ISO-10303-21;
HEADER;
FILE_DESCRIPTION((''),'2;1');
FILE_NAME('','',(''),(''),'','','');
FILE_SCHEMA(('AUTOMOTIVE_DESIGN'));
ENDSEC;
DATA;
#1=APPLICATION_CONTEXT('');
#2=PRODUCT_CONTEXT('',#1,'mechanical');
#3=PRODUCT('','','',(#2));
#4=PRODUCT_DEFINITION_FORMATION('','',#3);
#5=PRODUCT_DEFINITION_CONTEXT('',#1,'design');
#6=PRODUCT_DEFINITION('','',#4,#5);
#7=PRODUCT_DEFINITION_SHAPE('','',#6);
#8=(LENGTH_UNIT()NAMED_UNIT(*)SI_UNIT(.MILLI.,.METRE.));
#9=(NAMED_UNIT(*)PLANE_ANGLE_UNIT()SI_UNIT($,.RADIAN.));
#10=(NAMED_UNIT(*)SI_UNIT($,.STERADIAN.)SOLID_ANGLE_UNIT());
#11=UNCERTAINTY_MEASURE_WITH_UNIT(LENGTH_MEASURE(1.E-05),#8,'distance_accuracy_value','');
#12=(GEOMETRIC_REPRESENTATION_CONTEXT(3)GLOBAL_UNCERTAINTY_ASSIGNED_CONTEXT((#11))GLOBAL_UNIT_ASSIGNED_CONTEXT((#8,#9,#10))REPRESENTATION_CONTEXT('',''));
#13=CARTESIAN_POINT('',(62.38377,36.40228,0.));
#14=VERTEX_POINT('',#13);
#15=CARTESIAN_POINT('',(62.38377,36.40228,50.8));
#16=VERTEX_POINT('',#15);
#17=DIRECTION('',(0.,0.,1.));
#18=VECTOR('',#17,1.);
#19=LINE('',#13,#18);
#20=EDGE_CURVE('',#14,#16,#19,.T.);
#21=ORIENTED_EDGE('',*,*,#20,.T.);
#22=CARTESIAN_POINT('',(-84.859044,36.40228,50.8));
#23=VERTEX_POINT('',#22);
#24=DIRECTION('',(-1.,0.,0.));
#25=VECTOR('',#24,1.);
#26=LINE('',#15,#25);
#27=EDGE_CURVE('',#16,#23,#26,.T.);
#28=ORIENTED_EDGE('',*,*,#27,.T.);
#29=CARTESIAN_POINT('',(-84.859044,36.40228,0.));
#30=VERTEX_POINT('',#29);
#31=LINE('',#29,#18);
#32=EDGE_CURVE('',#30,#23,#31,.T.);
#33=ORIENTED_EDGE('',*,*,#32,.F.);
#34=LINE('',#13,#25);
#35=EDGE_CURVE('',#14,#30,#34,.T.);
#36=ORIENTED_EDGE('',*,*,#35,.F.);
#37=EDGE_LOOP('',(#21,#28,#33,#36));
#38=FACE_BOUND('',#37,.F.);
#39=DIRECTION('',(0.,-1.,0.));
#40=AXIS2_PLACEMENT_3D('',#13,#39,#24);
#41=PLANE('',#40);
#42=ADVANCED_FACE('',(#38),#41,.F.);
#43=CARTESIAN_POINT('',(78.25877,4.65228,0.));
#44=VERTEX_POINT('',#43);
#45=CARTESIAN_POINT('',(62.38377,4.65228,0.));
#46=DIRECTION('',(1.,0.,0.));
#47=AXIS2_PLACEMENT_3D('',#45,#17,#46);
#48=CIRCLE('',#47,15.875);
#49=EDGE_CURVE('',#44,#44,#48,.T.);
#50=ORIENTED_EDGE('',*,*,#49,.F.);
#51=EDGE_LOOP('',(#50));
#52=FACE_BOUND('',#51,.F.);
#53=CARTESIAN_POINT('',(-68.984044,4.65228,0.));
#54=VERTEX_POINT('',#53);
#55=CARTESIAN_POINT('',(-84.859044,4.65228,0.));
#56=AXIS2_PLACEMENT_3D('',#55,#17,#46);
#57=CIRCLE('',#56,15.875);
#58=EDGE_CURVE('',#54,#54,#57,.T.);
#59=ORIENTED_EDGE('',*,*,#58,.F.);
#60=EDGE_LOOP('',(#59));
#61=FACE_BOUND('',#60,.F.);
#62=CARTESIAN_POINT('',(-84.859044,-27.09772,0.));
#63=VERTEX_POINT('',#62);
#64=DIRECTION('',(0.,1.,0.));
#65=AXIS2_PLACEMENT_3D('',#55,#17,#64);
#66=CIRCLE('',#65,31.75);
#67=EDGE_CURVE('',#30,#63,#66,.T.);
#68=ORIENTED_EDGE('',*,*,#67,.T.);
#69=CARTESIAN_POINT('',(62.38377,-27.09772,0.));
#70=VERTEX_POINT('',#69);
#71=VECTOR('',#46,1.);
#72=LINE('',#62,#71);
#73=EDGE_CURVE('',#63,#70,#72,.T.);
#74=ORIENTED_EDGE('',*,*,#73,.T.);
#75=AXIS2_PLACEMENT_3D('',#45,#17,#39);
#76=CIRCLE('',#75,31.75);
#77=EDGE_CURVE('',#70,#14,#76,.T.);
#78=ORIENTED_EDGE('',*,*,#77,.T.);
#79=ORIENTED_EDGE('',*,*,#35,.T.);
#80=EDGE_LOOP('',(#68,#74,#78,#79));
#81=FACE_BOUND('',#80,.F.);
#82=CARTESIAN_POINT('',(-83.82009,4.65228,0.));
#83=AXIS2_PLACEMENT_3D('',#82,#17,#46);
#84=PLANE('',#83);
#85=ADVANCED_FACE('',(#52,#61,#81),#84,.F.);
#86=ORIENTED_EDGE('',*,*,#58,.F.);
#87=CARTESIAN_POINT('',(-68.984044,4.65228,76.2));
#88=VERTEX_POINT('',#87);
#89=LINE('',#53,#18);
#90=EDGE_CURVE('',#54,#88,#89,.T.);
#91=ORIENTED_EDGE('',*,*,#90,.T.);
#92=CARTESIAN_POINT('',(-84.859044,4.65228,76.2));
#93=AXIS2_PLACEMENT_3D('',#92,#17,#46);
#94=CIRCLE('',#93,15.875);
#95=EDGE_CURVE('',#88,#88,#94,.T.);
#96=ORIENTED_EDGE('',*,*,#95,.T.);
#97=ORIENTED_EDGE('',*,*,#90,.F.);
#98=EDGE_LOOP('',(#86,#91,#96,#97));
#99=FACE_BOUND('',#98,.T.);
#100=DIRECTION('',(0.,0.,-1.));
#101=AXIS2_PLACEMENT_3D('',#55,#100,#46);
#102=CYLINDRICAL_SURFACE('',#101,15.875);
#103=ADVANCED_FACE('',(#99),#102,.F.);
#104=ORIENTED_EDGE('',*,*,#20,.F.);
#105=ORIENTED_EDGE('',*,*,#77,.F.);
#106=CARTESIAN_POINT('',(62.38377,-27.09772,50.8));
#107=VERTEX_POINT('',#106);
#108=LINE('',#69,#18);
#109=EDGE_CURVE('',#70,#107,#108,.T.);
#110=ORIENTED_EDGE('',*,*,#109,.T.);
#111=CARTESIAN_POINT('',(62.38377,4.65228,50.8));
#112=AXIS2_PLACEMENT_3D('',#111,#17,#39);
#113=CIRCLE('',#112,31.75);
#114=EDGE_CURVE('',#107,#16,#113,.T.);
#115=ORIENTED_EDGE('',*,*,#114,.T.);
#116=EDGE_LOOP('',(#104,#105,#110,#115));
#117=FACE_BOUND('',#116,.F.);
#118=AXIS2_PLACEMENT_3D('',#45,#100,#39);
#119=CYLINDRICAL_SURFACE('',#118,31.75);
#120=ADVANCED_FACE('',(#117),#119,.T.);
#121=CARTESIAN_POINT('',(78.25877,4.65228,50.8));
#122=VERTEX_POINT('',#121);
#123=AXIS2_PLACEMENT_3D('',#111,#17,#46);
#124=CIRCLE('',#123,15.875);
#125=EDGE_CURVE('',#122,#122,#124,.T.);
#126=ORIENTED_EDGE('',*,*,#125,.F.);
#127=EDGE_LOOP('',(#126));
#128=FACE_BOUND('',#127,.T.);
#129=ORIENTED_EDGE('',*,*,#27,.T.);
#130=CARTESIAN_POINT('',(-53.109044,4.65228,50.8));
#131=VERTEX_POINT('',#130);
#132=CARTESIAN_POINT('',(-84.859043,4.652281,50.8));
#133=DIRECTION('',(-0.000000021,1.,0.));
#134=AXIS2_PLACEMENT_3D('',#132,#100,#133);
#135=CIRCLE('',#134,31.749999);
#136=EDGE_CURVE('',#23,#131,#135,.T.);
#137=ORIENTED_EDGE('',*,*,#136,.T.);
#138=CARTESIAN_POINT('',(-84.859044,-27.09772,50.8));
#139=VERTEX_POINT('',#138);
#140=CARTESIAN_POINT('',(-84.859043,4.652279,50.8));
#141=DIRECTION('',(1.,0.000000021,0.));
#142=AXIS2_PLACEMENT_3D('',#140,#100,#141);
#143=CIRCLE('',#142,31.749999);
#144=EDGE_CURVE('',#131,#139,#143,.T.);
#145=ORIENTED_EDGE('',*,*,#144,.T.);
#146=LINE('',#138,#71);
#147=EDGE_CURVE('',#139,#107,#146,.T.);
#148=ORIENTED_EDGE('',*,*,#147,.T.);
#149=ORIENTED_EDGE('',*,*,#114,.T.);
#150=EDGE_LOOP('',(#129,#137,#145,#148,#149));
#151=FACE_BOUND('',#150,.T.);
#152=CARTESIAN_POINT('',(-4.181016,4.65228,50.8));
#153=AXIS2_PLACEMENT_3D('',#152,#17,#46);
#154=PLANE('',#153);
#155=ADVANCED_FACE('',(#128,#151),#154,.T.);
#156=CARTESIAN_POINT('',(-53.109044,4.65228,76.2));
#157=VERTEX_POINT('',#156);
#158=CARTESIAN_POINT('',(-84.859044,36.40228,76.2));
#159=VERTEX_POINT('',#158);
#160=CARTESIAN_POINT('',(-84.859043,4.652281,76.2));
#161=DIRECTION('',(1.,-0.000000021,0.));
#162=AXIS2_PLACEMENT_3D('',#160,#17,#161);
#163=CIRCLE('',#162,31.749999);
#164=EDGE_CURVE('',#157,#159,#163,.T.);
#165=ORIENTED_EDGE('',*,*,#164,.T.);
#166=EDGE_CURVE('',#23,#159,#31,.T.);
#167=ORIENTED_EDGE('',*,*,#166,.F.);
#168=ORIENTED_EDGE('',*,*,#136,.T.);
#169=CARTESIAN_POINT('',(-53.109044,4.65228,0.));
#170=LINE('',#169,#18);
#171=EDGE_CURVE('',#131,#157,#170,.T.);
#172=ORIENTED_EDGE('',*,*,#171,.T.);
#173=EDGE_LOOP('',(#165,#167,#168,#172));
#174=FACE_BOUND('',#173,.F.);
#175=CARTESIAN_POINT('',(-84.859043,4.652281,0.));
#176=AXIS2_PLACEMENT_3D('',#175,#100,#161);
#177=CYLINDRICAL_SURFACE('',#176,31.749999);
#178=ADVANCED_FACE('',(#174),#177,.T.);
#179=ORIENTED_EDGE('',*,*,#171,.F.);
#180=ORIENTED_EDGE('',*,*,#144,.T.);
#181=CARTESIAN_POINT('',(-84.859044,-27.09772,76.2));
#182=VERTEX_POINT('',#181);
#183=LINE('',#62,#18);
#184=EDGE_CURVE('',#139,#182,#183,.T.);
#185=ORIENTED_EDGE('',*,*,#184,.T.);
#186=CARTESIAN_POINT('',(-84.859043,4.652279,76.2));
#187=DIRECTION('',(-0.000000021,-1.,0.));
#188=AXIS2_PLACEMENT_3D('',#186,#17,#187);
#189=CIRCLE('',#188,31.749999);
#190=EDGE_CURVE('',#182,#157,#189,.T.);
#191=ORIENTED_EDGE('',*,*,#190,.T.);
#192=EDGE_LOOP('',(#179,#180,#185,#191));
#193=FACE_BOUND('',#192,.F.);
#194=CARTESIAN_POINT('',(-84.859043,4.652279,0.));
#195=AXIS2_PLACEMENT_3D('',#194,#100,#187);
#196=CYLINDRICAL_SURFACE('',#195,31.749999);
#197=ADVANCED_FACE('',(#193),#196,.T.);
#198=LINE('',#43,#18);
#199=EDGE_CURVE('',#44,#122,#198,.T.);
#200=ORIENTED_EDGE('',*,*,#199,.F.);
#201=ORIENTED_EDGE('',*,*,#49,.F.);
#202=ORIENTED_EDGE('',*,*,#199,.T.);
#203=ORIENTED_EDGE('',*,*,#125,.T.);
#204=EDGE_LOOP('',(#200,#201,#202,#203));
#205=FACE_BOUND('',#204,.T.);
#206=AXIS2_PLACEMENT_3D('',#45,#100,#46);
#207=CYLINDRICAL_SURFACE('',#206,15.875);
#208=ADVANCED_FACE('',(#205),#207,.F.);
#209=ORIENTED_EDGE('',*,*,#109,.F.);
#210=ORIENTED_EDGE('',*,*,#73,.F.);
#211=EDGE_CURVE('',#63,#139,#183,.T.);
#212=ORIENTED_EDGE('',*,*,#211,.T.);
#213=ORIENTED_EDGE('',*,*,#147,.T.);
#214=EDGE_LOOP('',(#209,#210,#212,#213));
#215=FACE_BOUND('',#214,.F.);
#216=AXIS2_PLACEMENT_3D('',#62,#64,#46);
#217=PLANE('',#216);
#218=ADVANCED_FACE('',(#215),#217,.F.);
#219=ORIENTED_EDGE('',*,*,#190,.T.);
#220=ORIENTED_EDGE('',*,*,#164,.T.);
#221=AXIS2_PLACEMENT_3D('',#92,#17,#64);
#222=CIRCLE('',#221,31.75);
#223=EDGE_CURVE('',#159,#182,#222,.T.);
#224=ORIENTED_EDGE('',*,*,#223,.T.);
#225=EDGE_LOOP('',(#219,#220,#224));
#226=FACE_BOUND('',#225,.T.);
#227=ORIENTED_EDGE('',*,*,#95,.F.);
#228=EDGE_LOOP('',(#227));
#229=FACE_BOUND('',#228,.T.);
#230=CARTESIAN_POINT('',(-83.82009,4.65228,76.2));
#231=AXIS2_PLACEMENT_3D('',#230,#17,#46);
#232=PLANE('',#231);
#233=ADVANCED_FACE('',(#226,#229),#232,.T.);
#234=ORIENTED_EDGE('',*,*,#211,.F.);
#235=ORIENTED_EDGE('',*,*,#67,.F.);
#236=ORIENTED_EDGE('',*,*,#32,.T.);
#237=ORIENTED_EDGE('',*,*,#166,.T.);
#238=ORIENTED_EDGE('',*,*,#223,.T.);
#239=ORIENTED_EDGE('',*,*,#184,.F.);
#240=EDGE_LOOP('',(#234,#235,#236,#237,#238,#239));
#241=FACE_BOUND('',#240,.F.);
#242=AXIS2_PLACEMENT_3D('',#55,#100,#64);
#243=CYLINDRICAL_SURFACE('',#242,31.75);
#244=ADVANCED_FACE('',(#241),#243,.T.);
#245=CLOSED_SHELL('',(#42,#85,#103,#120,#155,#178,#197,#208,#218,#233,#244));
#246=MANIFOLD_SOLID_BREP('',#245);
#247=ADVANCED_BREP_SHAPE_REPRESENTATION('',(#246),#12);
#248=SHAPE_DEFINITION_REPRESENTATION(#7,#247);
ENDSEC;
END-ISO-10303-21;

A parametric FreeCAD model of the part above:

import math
import FreeCAD as App
import Part
import Sketcher
Q = App.Units.Quantity

doc = App.newDocument("Part")
body = doc.addObject("PartDesign::Body", "Body")

# Sketch on XY plane
sketch1 = body.newObject("Sketcher::SketchObject", "Sketch")
sketch1.AttachmentSupport = (doc.getObject("XY_Plane"), [""])
sketch1.MapMode = "FlatFace"
sketch1.addGeometry(Part.ArcOfCircle(Part.Circle(App.Vector(-84.859043, 4.652281, 0), App.Vector(0, 0, 1), 31.749999), math.radians(-0.000001), math.radians(90.000001)), False)
sketch1.addGeometry(Part.ArcOfCircle(Part.Circle(App.Vector(-84.859043, 4.652279, 0), App.Vector(0, 0, 1), 31.749999), math.radians(-90.000001), math.radians(0.000001)), False)
sketch1.addGeometry(Part.LineSegment(App.Vector(-84.859044, -27.09772, 0), App.Vector(62.38377, -27.09772, 0)), False)
sketch1.addGeometry(Part.ArcOfCircle(Part.Circle(App.Vector(62.38377, 4.65228, 0), App.Vector(0, 0, 1), 31.75), math.radians(-90), math.radians(90)), False)
sketch1.addGeometry(Part.LineSegment(App.Vector(62.38377, 36.40228, 0), App.Vector(-84.859044, 36.40228, 0)), False)
sketch1.addGeometry(Part.Circle(App.Vector(62.38377, 4.65228, 0), App.Vector(0, 0, 1), 15.875), False)
sketch1.addConstraint(Sketcher.Constraint("Tangent", 0, 1, 1, 2))
sketch1.addConstraint(Sketcher.Constraint("Tangent", 1, 1, 2, 1))
sketch1.addConstraint(Sketcher.Constraint("Tangent", 2, 2, 3, 1))
sketch1.addConstraint(Sketcher.Constraint("Tangent", 3, 2, 4, 1))
sketch1.addConstraint(Sketcher.Constraint("Tangent", 4, 2, 0, 2))
sketch1.addConstraint(Sketcher.Constraint("Horizontal", 2))
sketch1.addConstraint(Sketcher.Constraint("Horizontal", 4))
sketch1.addConstraint(Sketcher.Constraint("Coincident", 5, 3, 3, 3))
sketch1.addConstraint(Sketcher.Constraint("Equal", 0, 1))
sketch1.addConstraint(Sketcher.Constraint("Horizontal", 5, 3, 0, 1))
sketch1.addConstraint(Sketcher.Constraint("Diameter", 5, Q("1.25 in")))
sketch1.addConstraint(Sketcher.Constraint("Radius", 0, Q("1.25 in")))
sketch1.addConstraint(Sketcher.Constraint("DistanceX", 2, 1, 2, 2, 147.242814))
sketch1.addConstraint(Sketcher.Constraint("DistanceY", -1, 1, 0, 3, 4.652281))
sketch1.addConstraint(Sketcher.Constraint("DistanceX", -1, 1, 3, 3, 62.38377))
pad1 = body.newObject("PartDesign::Pad", "Pad")
pad1.Profile = sketch1
pad1.Length = Q("2 in")

# Sketch on XY plane
sketch2 = body.newObject("Sketcher::SketchObject", "Sketch001")
sketch2.AttachmentSupport = (doc.getObject("XY_Plane"), [""])
sketch2.MapMode = "FlatFace"
sketch2.addGeometry(Part.ArcOfCircle(Part.Circle(App.Vector(-84.859043, 4.652281, 0), App.Vector(0, 0, 1), 31.749999), math.radians(-0.000001), math.radians(90.000001)), False)
sketch2.addGeometry(Part.ArcOfCircle(Part.Circle(App.Vector(-84.859044, 4.65228, 0), App.Vector(0, 0, 1), 31.75), math.radians(90), math.radians(270)), False)
sketch2.addGeometry(Part.ArcOfCircle(Part.Circle(App.Vector(-84.859043, 4.652279, 0), App.Vector(0, 0, 1), 31.749999), math.radians(-90.000001), math.radians(0.000001)), False)
sketch2.addGeometry(Part.Circle(App.Vector(-84.859044, 4.65228, 0), App.Vector(0, 0, 1), 15.875), False)
sketch2.addConstraint(Sketcher.Constraint("Tangent", 0, 2, 1, 1))
sketch2.addConstraint(Sketcher.Constraint("Tangent", 1, 2, 2, 1))
sketch2.addConstraint(Sketcher.Constraint("Tangent", 2, 2, 0, 1))
sketch2.addConstraint(Sketcher.Constraint("Coincident", 3, 3, 0, 3))
sketch2.addConstraint(Sketcher.Constraint("Horizontal", 3, 3, 2, 2))
sketch2.addConstraint(Sketcher.Constraint("Vertical", 3, 3, 0, 2))
sketch2.addConstraint(Sketcher.Constraint("Vertical", 0, 2, 1, 2))
sketch2.addConstraint(Sketcher.Constraint("Diameter", 3, Q("1.25 in")))
sketch2.addConstraint(Sketcher.Constraint("Radius", 0, Q("1.25 in")))
sketch2.addConstraint(Sketcher.Constraint("DistanceY", -1, 1, 0, 3, 4.652281))
sketch2.addConstraint(Sketcher.Constraint("DistanceX", 0, 3, -1, 1, 84.859043))
pad2 = body.newObject("PartDesign::Pad", "Pad001")
pad2.Profile = sketch2
pad2.Length = Q("3 in")

doc.recompute()
